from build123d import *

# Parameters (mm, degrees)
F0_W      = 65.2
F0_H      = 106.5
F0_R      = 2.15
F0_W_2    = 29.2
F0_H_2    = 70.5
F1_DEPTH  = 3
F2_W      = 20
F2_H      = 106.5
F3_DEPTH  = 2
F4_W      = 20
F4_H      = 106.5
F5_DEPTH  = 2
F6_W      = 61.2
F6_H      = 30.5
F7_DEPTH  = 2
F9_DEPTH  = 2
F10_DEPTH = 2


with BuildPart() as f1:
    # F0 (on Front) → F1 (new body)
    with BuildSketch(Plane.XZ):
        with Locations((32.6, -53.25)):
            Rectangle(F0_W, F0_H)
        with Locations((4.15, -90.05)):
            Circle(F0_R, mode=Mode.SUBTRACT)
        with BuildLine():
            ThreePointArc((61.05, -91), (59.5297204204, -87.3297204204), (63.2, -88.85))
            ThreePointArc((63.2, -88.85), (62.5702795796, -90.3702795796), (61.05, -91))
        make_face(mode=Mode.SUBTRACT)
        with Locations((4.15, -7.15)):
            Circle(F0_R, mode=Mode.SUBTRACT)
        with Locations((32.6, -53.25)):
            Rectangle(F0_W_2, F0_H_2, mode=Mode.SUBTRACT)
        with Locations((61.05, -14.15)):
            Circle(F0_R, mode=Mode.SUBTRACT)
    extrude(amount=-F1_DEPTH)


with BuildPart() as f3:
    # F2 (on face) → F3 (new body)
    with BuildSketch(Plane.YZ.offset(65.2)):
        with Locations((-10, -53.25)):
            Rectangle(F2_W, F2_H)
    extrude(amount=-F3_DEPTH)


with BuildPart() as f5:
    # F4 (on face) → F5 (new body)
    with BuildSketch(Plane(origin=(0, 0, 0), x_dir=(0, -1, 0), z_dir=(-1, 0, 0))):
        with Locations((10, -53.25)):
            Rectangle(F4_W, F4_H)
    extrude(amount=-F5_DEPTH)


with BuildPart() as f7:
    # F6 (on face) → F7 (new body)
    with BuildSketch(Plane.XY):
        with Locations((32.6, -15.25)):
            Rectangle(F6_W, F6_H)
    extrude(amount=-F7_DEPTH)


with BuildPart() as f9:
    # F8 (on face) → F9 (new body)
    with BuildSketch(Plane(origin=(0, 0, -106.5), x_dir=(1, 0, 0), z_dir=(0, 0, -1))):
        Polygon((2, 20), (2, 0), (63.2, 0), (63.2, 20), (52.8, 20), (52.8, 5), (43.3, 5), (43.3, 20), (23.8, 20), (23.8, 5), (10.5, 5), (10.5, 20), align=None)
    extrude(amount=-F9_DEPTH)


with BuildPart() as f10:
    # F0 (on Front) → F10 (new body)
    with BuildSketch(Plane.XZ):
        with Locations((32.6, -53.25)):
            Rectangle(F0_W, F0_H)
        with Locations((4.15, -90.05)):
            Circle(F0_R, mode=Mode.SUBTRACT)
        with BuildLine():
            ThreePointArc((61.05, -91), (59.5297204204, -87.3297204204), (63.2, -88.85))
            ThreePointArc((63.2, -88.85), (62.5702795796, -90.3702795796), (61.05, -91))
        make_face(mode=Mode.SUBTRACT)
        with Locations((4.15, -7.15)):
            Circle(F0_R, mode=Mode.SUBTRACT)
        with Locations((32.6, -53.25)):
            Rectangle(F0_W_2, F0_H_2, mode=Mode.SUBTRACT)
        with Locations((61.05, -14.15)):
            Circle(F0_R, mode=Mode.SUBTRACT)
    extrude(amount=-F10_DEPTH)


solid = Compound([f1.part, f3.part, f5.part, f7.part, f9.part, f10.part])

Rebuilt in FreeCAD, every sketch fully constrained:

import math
import FreeCAD as App
import Part
import Sketcher

V = App.Vector

doc = App.newDocument("Part")
params = doc.addObject("Spreadsheet::Sheet", "Params")
for row, (alias, value) in enumerate([
    ("sketch1_diameter", "4.3 mm"),
    ("sketch1_width", "65.2 mm"),
    ("sketch1_width2", "29.2 mm"),
    ("sketch1_height", "106.5 mm"),
    ("sketch1_height2", "70.5 mm"),
    ("pad1_length", "3 mm"),
    ("sketch2_width", "20 mm"),
    ("sketch2_height", "106.5 mm"),
    ("pad2_length", "2 mm"),
    ("sketch3_width", "20 mm"),
    ("sketch3_height", "106.5 mm"),
    ("pad3_length", "2 mm"),
    ("sketch4_width", "61.2 mm"),
    ("sketch4_height", "30.5 mm"),
    ("pad4_length", "2 mm"),
    ("sketch5_height", "20 mm"),
    ("sketch5_height2", "15 mm"),
    ("sketch5_width", "61.2 mm"),
    ("sketch5_width2", "10.4 mm"),
    ("sketch5_width3", "9.5 mm"),
    ("pad5_length", "2 mm"),
    ("sketch6_diameter", "4.3 mm"),
    ("sketch6_width", "65.2 mm"),
    ("sketch6_width2", "29.2 mm"),
    ("sketch6_height", "106.5 mm"),
    ("sketch6_height2", "70.5 mm"),
    ("pad6_length", "2 mm"),
], start=1):
    params.set(f"A{row}", alias)
    params.set(f"B{row}", "=" + value)
    params.setAlias(f"B{row}", alias)

body = doc.addObject("PartDesign::Body", "Body")

sketch1 = body.newObject("Sketcher::SketchObject", "Sketch")
sketch1.AttachmentSupport = (doc.getObject("XZ_Plane"), [""])
sketch1.MapMode = "FlatFace"
sketch1.addGeometry([
    Part.LineSegment(V(0, 0, 0), V(0, -106.5, 0)),
    Part.LineSegment(V(0, -106.5, 0), V(65.2, -106.5, 0)),
    Part.LineSegment(V(65.2, -106.5, 0), V(65.2, 0, 0)),
    Part.LineSegment(V(65.2, 0, 0), V(0, 0, 0)),
    Part.Circle(V(4.2, -90, 0), V(0, 0, 1), 2.1),
    Part.ArcOfCircle(Part.Circle(V(61, -88.8, 0), V(0, 0, 1), 2.1), math.radians(-90), math.radians(0)),
    Part.ArcOfCircle(Part.Circle(V(61, -88.8, 0), V(0, 0, 1), 2.1), math.radians(0), math.radians(270)),
    Part.LineSegment(V(47.2, -88.5, 0), V(18, -88.5, 0)),
    Part.LineSegment(V(18, -88.5, 0), V(18, -18, 0)),
    Part.LineSegment(V(18, -18, 0), V(47.2, -18, 0)),
    Part.LineSegment(V(47.2, -18, 0), V(47.2, -88.5, 0)),
    Part.Circle(V(4.2, -7.2, 0), V(0, 0, 1), 2.1),
    Part.Circle(V(61, -14.2, 0), V(0, 0, 1), 2.1),
], False)
sketch1.addConstraint([
    Sketcher.Constraint("Coincident", 0, 2, 1, 1),
    Sketcher.Constraint("Coincident", 1, 2, 2, 1),
    Sketcher.Constraint("Coincident", 2, 2, 3, 1),
    Sketcher.Constraint("Coincident", 3, 2, 0, 1),
    Sketcher.Constraint("Tangent", 5, 1, 6, 2),
    Sketcher.Constraint("Coincident", 6, 1, 5, 2),
    Sketcher.Constraint("Coincident", 7, 2, 8, 1),
    Sketcher.Constraint("Coincident", 8, 2, 9, 1),
    Sketcher.Constraint("Coincident", 9, 2, 10, 1),
    Sketcher.Constraint("Coincident", 10, 2, 7, 1),
    Sketcher.Constraint("Vertical", 0),
    Sketcher.Constraint("Horizontal", 1),
    Sketcher.Constraint("Vertical", 2),
    Sketcher.Constraint("Horizontal", 3),
    Sketcher.Constraint("Horizontal", 7),
    Sketcher.Constraint("Vertical", 8),
    Sketcher.Constraint("Horizontal", 9),
    Sketcher.Constraint("Vertical", 10),
    Sketcher.Constraint("Coincident", 3, 2, -1, 1),
    Sketcher.Constraint("Equal", 4, 5),
    Sketcher.Constraint("Equal", 6, 11),
    Sketcher.Constraint("Equal", 11, 12),
    Sketcher.Constraint("Horizontal", 5, 3, 6, 1),
    Sketcher.Constraint("Vertical", 4, 3, 11, 3),
    Sketcher.Constraint("Vertical", 6, 3, 12, 3),
    Sketcher.Constraint("Vertical", 12, 3, 5, 1),
    Sketcher.Constraint("Diameter", 4, 4.3),
    Sketcher.Constraint("DistanceX", 1, 1, 1, 2, 65.2),
    Sketcher.Constraint("DistanceX", 7, 2, 7, 1, 29.2),
    Sketcher.Constraint("DistanceY", 0, 2, 0, 1, 106.5),
    Sketcher.Constraint("DistanceY", 8, 1, 8, 2, 70.5),
    Sketcher.Constraint("DistanceY", 5, 1, -1, 1, 91.0),
    Sketcher.Constraint("DistanceX", -1, 1, 7, 2, 18.0),
    Sketcher.Constraint("DistanceY", 8, 2, -1, 1, 18.0),
    Sketcher.Constraint("DistanceY", 12, 3, 11, 3, 7.0),
    Sketcher.Constraint("DistanceX", 6, 1, 1, 2, 2.0),
    Sketcher.Constraint("DistanceX", 4, 3, 5, 3, 56.9),
    Sketcher.Constraint("DistanceY", 4, 3, 5, 3, 1.2),
    Sketcher.Constraint("DistanceY", 4, 3, 11, 3, 82.9),
])
sketch1.setExpression("Constraints[26]", "Params.sketch1_diameter")
sketch1.setExpression("Constraints[27]", "Params.sketch1_width")
sketch1.setExpression("Constraints[28]", "Params.sketch1_width2")
sketch1.setExpression("Constraints[29]", "Params.sketch1_height")
sketch1.setExpression("Constraints[30]", "Params.sketch1_height2")
pad1 = body.newObject("PartDesign::Pad", "Pad")
pad1.Profile = sketch1
pad1.setExpression("Length", "Params.pad1_length")
pad1.Reversed = True
body2 = doc.addObject("PartDesign::Body", "Body001")

sketch2 = body2.newObject("Sketcher::SketchObject", "Sketch001")
sketch2.AttachmentSupport = (doc.getObject("YZ_Plane001"), [""])
sketch2.MapMode = "FlatFace"
sketch2.AttachmentOffset = App.Placement(V(0, 0, 65.2), App.Rotation())
sketch2.addGeometry([
    Part.LineSegment(V(-20, 0, 0), V(-20, -106, 0)),
    Part.LineSegment(V(-20, -106, 0), V(0, -106, 0)),
    Part.LineSegment(V(0, -106, 0), V(0, 0, 0)),
    Part.LineSegment(V(0, 0, 0), V(-20, 0, 0)),
], False)
sketch2.addConstraint([
    Sketcher.Constraint("Coincident", 0, 2, 1, 1),
    Sketcher.Constraint("Coincident", 1, 2, 2, 1),
    Sketcher.Constraint("Coincident", 2, 2, 3, 1),
    Sketcher.Constraint("Coincident", 3, 2, 0, 1),
    Sketcher.Constraint("Vertical", 0),
    Sketcher.Constraint("Horizontal", 1),
    Sketcher.Constraint("Vertical", 2),
    Sketcher.Constraint("Horizontal", 3),
    Sketcher.Constraint("Coincident", 2, 2, -1, 1),
    Sketcher.Constraint("DistanceX", 1, 1, 1, 2, 20.0),
    Sketcher.Constraint("DistanceY", 0, 2, 0, 1, 106.5),
])
sketch2.setExpression("Constraints[9]", "Params.sketch2_width")
sketch2.setExpression("Constraints[10]", "Params.sketch2_height")
pad2 = body2.newObject("PartDesign::Pad", "Pad001")
pad2.Profile = sketch2
pad2.setExpression("Length", "Params.pad2_length")
pad2.Reversed = True
body3 = doc.addObject("PartDesign::Body", "Body002")

sketch3 = body3.newObject("Sketcher::SketchObject", "Sketch002")
sketch3.AttachmentSupport = (doc.getObject("YZ_Plane002"), [""])
sketch3.MapMode = "FlatFace"
sketch3.addGeometry([
    Part.LineSegment(V(0, 0, 0), V(0, -106, 0)),
    Part.LineSegment(V(0, -106, 0), V(-20, -106, 0)),
    Part.LineSegment(V(-20, -106, 0), V(-20, 0, 0)),
    Part.LineSegment(V(-20, 0, 0), V(0, 0, 0)),
], False)
sketch3.addConstraint([
    Sketcher.Constraint("Coincident", 0, 2, 1, 1),
    Sketcher.Constraint("Coincident", 1, 2, 2, 1),
    Sketcher.Constraint("Coincident", 2, 2, 3, 1),
    Sketcher.Constraint("Coincident", 3, 2, 0, 1),
    Sketcher.Constraint("Vertical", 0),
    Sketcher.Constraint("Horizontal", 1),
    Sketcher.Constraint("Vertical", 2),
    Sketcher.Constraint("Horizontal", 3),
    Sketcher.Constraint("Coincident", 3, 2, -1, 1),
    Sketcher.Constraint("DistanceX", 1, 2, 1, 1, 20.0),
    Sketcher.Constraint("DistanceY", 0, 2, 0, 1, 106.5),
])
sketch3.setExpression("Constraints[9]", "Params.sketch3_width")
sketch3.setExpression("Constraints[10]", "Params.sketch3_height")
pad3 = body3.newObject("PartDesign::Pad", "Pad002")
pad3.Profile = sketch3
pad3.setExpression("Length", "Params.pad3_length")
body4 = doc.addObject("PartDesign::Body", "Body003")

sketch4 = body4.newObject("Sketcher::SketchObject", "Sketch003")
sketch4.AttachmentSupport = (doc.getObject("XY_Plane003"), [""])
sketch4.MapMode = "FlatFace"
sketch4.addGeometry([
    Part.LineSegment(V(2, 0, 0), V(2, -30, 0)),
    Part.LineSegment(V(2, -30, 0), V(63, -30, 0)),
    Part.LineSegment(V(63, -30, 0), V(63, 0, 0)),
    Part.LineSegment(V(63, 0, 0), V(2, 0, 0)),
], False)
sketch4.addConstraint([
    Sketcher.Constraint("Coincident", 0, 2, 1, 1),
    Sketcher.Constraint("Coincident", 1, 2, 2, 1),
    Sketcher.Constraint("Coincident", 2, 2, 3, 1),
    Sketcher.Constraint("Coincident", 3, 2, 0, 1),
    Sketcher.Constraint("Vertical", 0),
    Sketcher.Constraint("Horizontal", 1),
    Sketcher.Constraint("Vertical", 2),
    Sketcher.Constraint("Horizontal", 3),
    Sketcher.Constraint("PointOnObject", 2, 2, -1),
    Sketcher.Constraint("DistanceX", 1, 1, 1, 2, 61.2),
    Sketcher.Constraint("DistanceY", 0, 2, 0, 1, 30.5),
    Sketcher.Constraint("DistanceX", -1, 1, 0, 2, 2.0),
])
sketch4.setExpression("Constraints[9]", "Params.sketch4_width")
sketch4.setExpression("Constraints[10]", "Params.sketch4_height")
pad4 = body4.newObject("PartDesign::Pad", "Pad003")
pad4.Profile = sketch4
pad4.setExpression("Length", "Params.pad4_length")
pad4.Reversed = True
body5 = doc.addObject("PartDesign::Body", "Body004")

sketch5 = body5.newObject("Sketcher::SketchObject", "Sketch004")
sketch5.AttachmentSupport = (doc.getObject("XY_Plane004"), [""])
sketch5.MapMode = "FlatFace"
sketch5.AttachmentOffset = App.Placement(V(0, 0, -106.5), App.Rotation())
sketch5.addGeometry([
    Part.LineSegment(V(2, -20, 0), V(2, 0, 0)),
    Part.LineSegment(V(2, 0, 0), V(63, 0, 0)),
    Part.LineSegment(V(63, 0, 0), V(63, -20, 0)),
    Part.LineSegment(V(63, -20, 0), V(53, -20, 0)),
    Part.LineSegment(V(53, -20, 0), V(53, -5, 0)),
    Part.LineSegment(V(53, -5, 0), V(43, -5, 0)),
    Part.LineSegment(V(43, -5, 0), V(43, -20, 0)),
    Part.LineSegment(V(43, -20, 0), V(24, -20, 0)),
    Part.LineSegment(V(24, -20, 0), V(24, -5, 0)),
    Part.LineSegment(V(24, -5, 0), V(10, -5, 0)),
    Part.LineSegment(V(10, -5, 0), V(10, -20, 0)),
    Part.LineSegment(V(10, -20, 0), V(2, -20, 0)),
], False)
sketch5.addConstraint([
    Sketcher.Constraint("Coincident", 0, 2, 1, 1),
    Sketcher.Constraint("Coincident", 1, 2, 2, 1),
    Sketcher.Constraint("Coincident", 2, 2, 3, 1),
    Sketcher.Constraint("Coincident", 3, 2, 4, 1),
    Sketcher.Constraint("Coincident", 4, 2, 5, 1),
    Sketcher.Constraint("Coincident", 5, 2, 6, 1),
    Sketcher.Constraint("Coincident", 6, 2, 7, 1),
    Sketcher.Constraint("Coincident", 7, 2, 8, 1),
    Sketcher.Constraint("Coincident", 8, 2, 9, 1),
    Sketcher.Constraint("Coincident", 9, 2, 10, 1),
    Sketcher.Constraint("Coincident", 10, 2, 11, 1),
    Sketcher.Constraint("Coincident", 11, 2, 0, 1),
    Sketcher.Constraint("Vertical", 0),
    Sketcher.Constraint("Horizontal", 1),
    Sketcher.Constraint("Vertical", 2),
    Sketcher.Constraint("Horizontal", 3),
    Sketcher.Constraint("Vertical", 4),
    Sketcher.Constraint("Horizontal", 5),
    Sketcher.Constraint("Vertical", 6),
    Sketcher.Constraint("Horizontal", 7),
    Sketcher.Constraint("Vertical", 8),
    Sketcher.Constraint("Horizontal", 9),
    Sketcher.Constraint("Vertical", 10),
    Sketcher.Constraint("Horizontal", 11),
    Sketcher.Constraint("PointOnObject", 0, 2, -1),
    Sketcher.Constraint("Horizontal", 3, 2, 6, 2),
    Sketcher.Constraint("Horizontal", 5, 2, 8, 2),
    Sketcher.Constraint("Horizontal", 7, 2, 10, 2),
    Sketcher.Constraint("DistanceY", 0, 1, 0, 2, 20.0),
    Sketcher.Constraint("DistanceY", 4, 1, 4, 2, 15.0),
    Sketcher.Constraint("DistanceX", 1, 1, 1, 2, 61.2),
    Sketcher.Constraint("DistanceX", 3, 2, 3, 1, 10.4),
    Sketcher.Constraint("DistanceX", 5, 2, 5, 1, 9.5),
    Sketcher.Constraint("DistanceX", 7, 2, 7, 1, 19.5),
    Sketcher.Constraint("DistanceX", 9, 2, 9, 1, 13.3),
    Sketcher.Constraint("DistanceX", -1, 1, 0, 2, 2.0),
])
sketch5.setExpression("Constraints[28]", "Params.sketch5_height")
sketch5.setExpression("Constraints[29]", "Params.sketch5_height2")
sketch5.setExpression("Constraints[30]", "Params.sketch5_width")
sketch5.setExpression("Constraints[31]", "Params.sketch5_width2")
sketch5.setExpression("Constraints[32]", "Params.sketch5_width3")
pad5 = body5.newObject("PartDesign::Pad", "Pad004")
pad5.Profile = sketch5
pad5.setExpression("Length", "Params.pad5_length")
body6 = doc.addObject("PartDesign::Body", "Body005")

sketch6 = body6.newObject("Sketcher::SketchObject", "Sketch005")
sketch6.AttachmentSupport = (doc.getObject("XZ_Plane005"), [""])
sketch6.MapMode = "FlatFace"
sketch6.addGeometry([
    Part.LineSegment(V(0, 0, 0), V(0, -106.5, 0)),
    Part.LineSegment(V(0, -106.5, 0), V(65.2, -106.5, 0)),
    Part.LineSegment(V(65.2, -106.5, 0), V(65.2, 0, 0)),
    Part.LineSegment(V(65.2, 0, 0), V(0, 0, 0)),
    Part.Circle(V(4.2, -90, 0), V(0, 0, 1), 2.1),
    Part.ArcOfCircle(Part.Circle(V(61, -88.8, 0), V(0, 0, 1), 2.1), math.radians(-90), math.radians(0)),
    Part.ArcOfCircle(Part.Circle(V(61, -88.8, 0), V(0, 0, 1), 2.1), math.radians(0), math.radians(270)),
    Part.LineSegment(V(47.2, -88.5, 0), V(18, -88.5, 0)),
    Part.LineSegment(V(18, -88.5, 0), V(18, -18, 0)),
    Part.LineSegment(V(18, -18, 0), V(47.2, -18, 0)),
    Part.LineSegment(V(47.2, -18, 0), V(47.2, -88.5, 0)),
    Part.Circle(V(4.2, -7.2, 0), V(0, 0, 1), 2.1),
    Part.Circle(V(61, -14.2, 0), V(0, 0, 1), 2.1),
], False)
sketch6.addConstraint([
    Sketcher.Constraint("Coincident", 0, 2, 1, 1),
    Sketcher.Constraint("Coincident", 1, 2, 2, 1),
    Sketcher.Constraint("Coincident", 2, 2, 3, 1),
    Sketcher.Constraint("Coincident", 3, 2, 0, 1),
    Sketcher.Constraint("Tangent", 5, 1, 6, 2),
    Sketcher.Constraint("Coincident", 6, 1, 5, 2),
    Sketcher.Constraint("Coincident", 7, 2, 8, 1),
    Sketcher.Constraint("Coincident", 8, 2, 9, 1),
    Sketcher.Constraint("Coincident", 9, 2, 10, 1),
    Sketcher.Constraint("Coincident", 10, 2, 7, 1),
    Sketcher.Constraint("Vertical", 0),
    Sketcher.Constraint("Horizontal", 1),
    Sketcher.Constraint("Vertical", 2),
    Sketcher.Constraint("Horizontal", 3),
    Sketcher.Constraint("Horizontal", 7),
    Sketcher.Constraint("Vertical", 8),
    Sketcher.Constraint("Horizontal", 9),
    Sketcher.Constraint("Vertical", 10),
    Sketcher.Constraint("Coincident", 3, 2, -1, 1),
    Sketcher.Constraint("Equal", 4, 5),
    Sketcher.Constraint("Equal", 6, 11),
    Sketcher.Constraint("Equal", 11, 12),
    Sketcher.Constraint("Horizontal", 5, 3, 6, 1),
    Sketcher.Constraint("Vertical", 4, 3, 11, 3),
    Sketcher.Constraint("Vertical", 6, 3, 12, 3),
    Sketcher.Constraint("Vertical", 12, 3, 5, 1),
    Sketcher.Constraint("Diameter", 4, 4.3),
    Sketcher.Constraint("DistanceX", 1, 1, 1, 2, 65.2),
    Sketcher.Constraint("DistanceX", 7, 2, 7, 1, 29.2),
    Sketcher.Constraint("DistanceY", 0, 2, 0, 1, 106.5),
    Sketcher.Constraint("DistanceY", 8, 1, 8, 2, 70.5),
    Sketcher.Constraint("DistanceY", 5, 1, -1, 1, 91.0),
    Sketcher.Constraint("DistanceX", -1, 1, 7, 2, 18.0),
    Sketcher.Constraint("DistanceY", 8, 2, -1, 1, 18.0),
    Sketcher.Constraint("DistanceY", 12, 3, 11, 3, 7.0),
    Sketcher.Constraint("DistanceX", 6, 1, 1, 2, 2.0),
    Sketcher.Constraint("DistanceX", 4, 3, 5, 3, 56.9),
    Sketcher.Constraint("DistanceY", 4, 3, 5, 3, 1.2),
    Sketcher.Constraint("DistanceY", 4, 3, 11, 3, 82.9),
])
sketch6.setExpression("Constraints[26]", "Params.sketch6_diameter")
sketch6.setExpression("Constraints[27]", "Params.sketch6_width")
sketch6.setExpression("Constraints[28]", "Params.sketch6_width2")
sketch6.setExpression("Constraints[29]", "Params.sketch6_height")
sketch6.setExpression("Constraints[30]", "Params.sketch6_height2")
pad6 = body6.newObject("PartDesign::Pad", "Pad005")
pad6.Profile = sketch6
pad6.setExpression("Length", "Params.pad6_length")
pad6.Reversed = True

doc.recompute()
